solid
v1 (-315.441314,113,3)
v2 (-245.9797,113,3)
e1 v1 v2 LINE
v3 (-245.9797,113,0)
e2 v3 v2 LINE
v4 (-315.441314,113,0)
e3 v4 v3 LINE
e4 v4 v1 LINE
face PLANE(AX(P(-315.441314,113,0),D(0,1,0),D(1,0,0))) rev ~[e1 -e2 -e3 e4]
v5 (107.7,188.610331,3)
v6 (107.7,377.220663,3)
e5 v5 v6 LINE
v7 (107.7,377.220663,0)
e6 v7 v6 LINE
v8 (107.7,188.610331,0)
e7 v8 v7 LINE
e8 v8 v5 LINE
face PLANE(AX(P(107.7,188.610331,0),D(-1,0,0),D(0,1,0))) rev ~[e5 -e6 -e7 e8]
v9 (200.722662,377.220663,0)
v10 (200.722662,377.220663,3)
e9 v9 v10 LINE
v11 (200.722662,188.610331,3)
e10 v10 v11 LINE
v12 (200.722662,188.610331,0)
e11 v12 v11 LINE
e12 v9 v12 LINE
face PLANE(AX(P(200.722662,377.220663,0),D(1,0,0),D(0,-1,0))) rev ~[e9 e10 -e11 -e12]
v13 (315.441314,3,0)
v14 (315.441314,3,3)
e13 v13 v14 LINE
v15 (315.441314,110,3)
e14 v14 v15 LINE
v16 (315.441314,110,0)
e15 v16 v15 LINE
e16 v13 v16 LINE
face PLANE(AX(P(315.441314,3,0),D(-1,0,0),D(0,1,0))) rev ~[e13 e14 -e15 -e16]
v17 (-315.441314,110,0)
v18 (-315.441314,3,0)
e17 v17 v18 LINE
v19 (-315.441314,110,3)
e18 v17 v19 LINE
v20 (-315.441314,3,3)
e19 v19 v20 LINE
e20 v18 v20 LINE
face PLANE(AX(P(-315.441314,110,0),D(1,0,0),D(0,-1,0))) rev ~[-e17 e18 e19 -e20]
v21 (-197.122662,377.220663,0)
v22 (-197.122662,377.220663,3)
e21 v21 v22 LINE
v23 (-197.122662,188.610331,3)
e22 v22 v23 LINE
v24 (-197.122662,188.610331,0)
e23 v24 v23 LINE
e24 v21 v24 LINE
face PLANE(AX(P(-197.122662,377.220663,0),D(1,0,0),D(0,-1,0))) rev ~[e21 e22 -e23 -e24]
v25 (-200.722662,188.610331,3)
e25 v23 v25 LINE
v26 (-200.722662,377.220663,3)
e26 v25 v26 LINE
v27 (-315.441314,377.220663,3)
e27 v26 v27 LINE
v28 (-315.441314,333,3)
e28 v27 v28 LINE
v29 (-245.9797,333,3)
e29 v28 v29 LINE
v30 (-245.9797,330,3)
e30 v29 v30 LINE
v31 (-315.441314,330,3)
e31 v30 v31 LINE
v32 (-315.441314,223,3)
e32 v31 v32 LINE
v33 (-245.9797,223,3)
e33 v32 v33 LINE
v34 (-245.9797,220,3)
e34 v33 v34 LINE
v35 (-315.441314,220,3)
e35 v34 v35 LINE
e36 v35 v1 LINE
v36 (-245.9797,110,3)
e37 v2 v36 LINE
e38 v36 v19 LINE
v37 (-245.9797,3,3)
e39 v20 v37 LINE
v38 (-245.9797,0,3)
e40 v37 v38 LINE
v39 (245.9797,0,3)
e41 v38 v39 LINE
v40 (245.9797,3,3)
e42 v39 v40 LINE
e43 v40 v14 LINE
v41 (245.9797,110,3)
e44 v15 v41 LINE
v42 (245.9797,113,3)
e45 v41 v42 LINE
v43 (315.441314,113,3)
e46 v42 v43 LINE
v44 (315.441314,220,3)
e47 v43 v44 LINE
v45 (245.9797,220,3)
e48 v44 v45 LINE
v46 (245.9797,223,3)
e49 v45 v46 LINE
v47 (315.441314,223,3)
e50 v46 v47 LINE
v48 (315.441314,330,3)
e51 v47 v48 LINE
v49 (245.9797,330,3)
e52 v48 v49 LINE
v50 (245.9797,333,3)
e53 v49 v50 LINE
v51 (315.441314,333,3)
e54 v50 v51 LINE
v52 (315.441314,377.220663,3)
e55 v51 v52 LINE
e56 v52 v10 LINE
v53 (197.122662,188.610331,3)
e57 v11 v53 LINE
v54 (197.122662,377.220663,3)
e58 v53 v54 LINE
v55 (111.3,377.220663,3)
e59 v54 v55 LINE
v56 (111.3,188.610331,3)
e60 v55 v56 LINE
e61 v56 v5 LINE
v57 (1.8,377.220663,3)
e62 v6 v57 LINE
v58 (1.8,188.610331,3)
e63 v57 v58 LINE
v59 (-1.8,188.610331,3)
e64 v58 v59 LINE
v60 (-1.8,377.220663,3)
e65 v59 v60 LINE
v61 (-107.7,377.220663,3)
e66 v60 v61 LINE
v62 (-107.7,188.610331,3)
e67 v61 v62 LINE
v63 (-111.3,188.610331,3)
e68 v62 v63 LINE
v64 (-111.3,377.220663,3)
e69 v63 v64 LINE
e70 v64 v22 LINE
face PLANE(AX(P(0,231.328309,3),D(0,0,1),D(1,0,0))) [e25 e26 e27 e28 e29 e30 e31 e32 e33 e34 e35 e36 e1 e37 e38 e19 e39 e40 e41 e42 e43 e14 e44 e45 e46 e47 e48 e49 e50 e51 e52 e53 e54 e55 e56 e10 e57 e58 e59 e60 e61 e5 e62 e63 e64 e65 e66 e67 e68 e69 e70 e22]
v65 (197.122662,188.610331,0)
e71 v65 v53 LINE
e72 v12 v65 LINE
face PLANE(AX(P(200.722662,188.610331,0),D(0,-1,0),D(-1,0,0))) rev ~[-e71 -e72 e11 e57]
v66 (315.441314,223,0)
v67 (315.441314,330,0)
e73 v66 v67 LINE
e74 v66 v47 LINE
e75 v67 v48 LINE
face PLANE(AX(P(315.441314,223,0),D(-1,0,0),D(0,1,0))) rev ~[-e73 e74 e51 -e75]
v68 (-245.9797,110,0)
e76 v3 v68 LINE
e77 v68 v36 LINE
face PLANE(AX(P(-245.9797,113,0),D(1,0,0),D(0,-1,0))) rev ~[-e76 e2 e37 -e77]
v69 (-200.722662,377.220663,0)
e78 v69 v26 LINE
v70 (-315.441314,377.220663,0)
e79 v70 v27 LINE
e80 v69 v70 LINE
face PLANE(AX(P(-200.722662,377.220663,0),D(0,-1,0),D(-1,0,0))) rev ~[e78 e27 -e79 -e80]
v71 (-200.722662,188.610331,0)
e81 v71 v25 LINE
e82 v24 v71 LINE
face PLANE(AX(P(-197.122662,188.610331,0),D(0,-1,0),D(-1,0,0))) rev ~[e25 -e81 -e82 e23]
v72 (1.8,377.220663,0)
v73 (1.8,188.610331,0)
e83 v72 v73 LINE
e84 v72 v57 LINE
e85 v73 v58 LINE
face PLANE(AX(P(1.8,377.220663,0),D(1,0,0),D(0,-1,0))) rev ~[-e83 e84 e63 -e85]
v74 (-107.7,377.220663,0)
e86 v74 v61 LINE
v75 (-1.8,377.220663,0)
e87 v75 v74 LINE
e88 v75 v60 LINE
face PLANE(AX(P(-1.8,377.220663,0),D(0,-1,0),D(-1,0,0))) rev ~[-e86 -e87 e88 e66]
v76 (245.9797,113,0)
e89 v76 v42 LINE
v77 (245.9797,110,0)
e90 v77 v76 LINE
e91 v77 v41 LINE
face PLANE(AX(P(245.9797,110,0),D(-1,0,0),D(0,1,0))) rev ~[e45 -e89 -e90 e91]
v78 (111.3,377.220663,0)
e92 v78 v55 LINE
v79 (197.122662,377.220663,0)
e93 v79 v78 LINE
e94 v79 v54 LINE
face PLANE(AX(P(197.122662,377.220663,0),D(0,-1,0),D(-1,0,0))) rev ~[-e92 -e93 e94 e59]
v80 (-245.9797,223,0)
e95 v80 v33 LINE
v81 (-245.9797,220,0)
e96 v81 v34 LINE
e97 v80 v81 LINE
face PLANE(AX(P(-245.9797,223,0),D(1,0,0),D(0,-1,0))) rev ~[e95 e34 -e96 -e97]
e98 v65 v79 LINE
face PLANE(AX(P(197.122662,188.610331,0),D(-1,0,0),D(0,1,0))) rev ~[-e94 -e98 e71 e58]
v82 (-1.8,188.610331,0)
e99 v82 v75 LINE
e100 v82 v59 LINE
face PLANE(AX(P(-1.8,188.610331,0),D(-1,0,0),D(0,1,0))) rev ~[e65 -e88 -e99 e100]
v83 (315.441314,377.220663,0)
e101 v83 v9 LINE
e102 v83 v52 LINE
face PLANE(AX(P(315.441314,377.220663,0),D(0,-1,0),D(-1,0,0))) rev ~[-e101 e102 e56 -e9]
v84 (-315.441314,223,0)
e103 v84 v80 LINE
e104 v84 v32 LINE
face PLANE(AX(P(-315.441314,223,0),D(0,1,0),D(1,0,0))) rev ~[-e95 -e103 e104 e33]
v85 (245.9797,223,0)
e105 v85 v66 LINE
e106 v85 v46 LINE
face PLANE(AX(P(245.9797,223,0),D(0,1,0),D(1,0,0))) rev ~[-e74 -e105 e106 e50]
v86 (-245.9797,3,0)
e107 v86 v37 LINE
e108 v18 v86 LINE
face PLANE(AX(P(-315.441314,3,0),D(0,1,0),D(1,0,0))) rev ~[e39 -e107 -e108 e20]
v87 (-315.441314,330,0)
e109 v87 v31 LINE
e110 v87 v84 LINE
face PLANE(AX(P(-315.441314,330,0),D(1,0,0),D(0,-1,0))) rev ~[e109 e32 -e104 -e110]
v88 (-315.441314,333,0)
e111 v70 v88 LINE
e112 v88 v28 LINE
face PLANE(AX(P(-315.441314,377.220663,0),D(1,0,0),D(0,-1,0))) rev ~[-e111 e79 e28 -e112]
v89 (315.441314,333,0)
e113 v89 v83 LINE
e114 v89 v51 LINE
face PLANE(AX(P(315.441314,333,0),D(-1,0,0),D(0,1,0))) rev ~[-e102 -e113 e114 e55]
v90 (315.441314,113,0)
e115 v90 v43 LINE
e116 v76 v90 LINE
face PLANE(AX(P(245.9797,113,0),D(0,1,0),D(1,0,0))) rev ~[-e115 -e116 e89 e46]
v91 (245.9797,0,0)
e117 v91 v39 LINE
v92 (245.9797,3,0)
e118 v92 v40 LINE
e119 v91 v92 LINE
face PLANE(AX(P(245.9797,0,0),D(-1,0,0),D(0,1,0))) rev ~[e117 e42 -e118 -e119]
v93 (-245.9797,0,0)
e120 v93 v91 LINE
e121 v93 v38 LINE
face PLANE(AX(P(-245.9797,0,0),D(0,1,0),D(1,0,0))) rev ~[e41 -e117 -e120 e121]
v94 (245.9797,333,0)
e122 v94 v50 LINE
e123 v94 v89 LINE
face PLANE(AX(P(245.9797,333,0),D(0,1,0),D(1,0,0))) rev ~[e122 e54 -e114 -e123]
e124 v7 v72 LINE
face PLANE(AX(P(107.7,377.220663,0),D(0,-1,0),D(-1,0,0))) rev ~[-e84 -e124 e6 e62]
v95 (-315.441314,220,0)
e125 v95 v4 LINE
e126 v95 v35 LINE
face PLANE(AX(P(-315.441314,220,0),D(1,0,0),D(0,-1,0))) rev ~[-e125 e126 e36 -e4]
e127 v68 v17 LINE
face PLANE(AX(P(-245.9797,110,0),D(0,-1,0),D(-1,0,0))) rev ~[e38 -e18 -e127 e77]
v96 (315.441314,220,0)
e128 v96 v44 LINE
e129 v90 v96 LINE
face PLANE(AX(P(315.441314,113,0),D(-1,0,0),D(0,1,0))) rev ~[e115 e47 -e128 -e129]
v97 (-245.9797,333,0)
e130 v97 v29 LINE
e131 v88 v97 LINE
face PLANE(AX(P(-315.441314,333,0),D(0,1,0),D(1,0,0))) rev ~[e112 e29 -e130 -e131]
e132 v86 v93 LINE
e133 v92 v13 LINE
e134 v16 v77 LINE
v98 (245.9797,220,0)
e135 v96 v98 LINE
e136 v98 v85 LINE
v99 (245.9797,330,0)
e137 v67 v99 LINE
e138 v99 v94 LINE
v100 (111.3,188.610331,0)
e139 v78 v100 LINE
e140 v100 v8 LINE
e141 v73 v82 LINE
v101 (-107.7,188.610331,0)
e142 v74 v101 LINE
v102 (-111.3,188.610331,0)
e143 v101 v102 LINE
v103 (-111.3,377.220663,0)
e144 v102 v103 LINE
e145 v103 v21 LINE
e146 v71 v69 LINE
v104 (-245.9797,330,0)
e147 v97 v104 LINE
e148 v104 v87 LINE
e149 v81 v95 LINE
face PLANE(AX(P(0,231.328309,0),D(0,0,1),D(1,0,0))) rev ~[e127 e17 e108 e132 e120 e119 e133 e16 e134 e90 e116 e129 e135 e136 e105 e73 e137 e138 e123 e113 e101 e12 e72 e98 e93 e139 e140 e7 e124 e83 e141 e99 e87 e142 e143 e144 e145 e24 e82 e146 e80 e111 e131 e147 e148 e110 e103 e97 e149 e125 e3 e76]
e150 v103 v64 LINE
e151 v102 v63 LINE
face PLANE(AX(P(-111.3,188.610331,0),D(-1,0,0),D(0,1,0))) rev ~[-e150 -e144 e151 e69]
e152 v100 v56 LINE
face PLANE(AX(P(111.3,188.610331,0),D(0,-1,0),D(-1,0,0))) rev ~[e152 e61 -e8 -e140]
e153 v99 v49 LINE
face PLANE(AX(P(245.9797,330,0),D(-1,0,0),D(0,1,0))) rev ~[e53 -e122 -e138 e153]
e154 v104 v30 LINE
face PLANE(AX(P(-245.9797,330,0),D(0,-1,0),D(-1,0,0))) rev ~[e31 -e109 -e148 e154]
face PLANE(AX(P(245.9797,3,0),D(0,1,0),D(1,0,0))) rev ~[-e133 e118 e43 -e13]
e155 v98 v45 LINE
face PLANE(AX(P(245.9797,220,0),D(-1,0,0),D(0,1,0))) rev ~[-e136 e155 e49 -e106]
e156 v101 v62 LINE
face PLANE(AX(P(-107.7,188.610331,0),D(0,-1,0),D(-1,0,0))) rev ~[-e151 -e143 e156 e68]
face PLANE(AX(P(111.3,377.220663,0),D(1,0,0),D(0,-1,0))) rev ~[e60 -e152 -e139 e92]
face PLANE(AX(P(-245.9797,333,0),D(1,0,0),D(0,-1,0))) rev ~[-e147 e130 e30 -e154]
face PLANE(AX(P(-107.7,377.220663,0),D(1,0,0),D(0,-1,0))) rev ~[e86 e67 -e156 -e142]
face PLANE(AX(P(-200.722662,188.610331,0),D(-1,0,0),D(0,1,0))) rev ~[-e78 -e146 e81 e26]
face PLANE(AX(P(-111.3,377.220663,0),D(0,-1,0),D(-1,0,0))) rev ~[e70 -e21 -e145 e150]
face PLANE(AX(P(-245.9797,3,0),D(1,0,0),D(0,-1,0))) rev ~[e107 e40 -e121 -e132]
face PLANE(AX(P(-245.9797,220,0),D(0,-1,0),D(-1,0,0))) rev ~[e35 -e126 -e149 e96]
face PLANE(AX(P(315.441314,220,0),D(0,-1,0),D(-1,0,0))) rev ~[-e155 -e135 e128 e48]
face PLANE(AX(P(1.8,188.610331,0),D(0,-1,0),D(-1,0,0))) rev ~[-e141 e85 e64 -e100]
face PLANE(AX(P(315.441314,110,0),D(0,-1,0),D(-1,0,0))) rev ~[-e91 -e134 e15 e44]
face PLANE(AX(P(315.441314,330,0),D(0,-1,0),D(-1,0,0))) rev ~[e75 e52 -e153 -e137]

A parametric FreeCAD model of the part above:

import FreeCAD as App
import Part
import Sketcher
Q = App.Units.Quantity


def add_polygon(sketch, points):
    """Adds a closed chain of lines whose ends are joined by coincident constraints."""
    first, n = sketch.GeometryCount, len(points)
    for a, b in zip(points, points[1:] + points[:1]):
        sketch.addGeometry(Part.LineSegment(App.Vector(*a, 0), App.Vector(*b, 0)), False)
    for i in range(n):
        sketch.addConstraint(Sketcher.Constraint("Coincident", first + i, 2, first + (i + 1) % n, 1))

doc = App.newDocument("Part")
body = doc.addObject("PartDesign::Body", "Body")

sketch1 = body.newObject("Sketcher::SketchObject", "Sketch")
sketch1.AttachmentSupport = (doc.getObject("XY_Plane"), [""])
sketch1.MapMode = "FlatFace"
add_polygon(sketch1, [(-315.4, 3), (-246, 3), (-246, 0), (246, 0), (246, 3), (315.4, 3), (315.4, 110), (246, 110), (246, 113), (315.4, 113), (315.4, 220), (246, 220), (246, 223), (315.4, 223), (315.4, 330), (246, 330), (246, 333), (315.4, 333), (315.4, 377.2), (200.7, 377.2), (200.7, 188.6), (197.1, 188.6), (197.1, 377.2), (111.3, 377.2), (111.3, 188.6), (107.7, 188.6), (107.7, 377.2), (1.8, 377.2), (1.8, 188.6), (-1.8, 188.6), (-1.8, 377.2), (-107.7, 377.2), (-107.7, 188.6), (-111.3, 188.6), (-111.3, 377.2), (-197.1, 377.2), (-197.1, 188.6), (-200.7, 188.6), (-200.7, 377.2), (-315.4, 377.2), (-315.4, 333), (-246, 333), (-246, 330), (-315.4, 330), (-315.4, 223), (-246, 223), (-246, 220), (-315.4, 220), (-315.4, 113), (-246, 113), (-246, 110), (-315.4, 110)])
sketch1.addConstraint(Sketcher.Constraint("Horizontal", 0))
sketch1.addConstraint(Sketcher.Constraint("Vertical", 1))
sketch1.addConstraint(Sketcher.Constraint("Horizontal", 2))
sketch1.addConstraint(Sketcher.Constraint("Vertical", 3))
sketch1.addConstraint(Sketcher.Constraint("Horizontal", 4))
sketch1.addConstraint(Sketcher.Constraint("Vertical", 5))
sketch1.addConstraint(Sketcher.Constraint("Horizontal", 6))
sketch1.addConstraint(Sketcher.Constraint("Vertical", 7))
sketch1.addConstraint(Sketcher.Constraint("Horizontal", 8))
sketch1.addConstraint(Sketcher.Constraint("Vertical", 9))
sketch1.addConstraint(Sketcher.Constraint("Horizontal", 10))
sketch1.addConstraint(Sketcher.Constraint("Vertical", 11))
sketch1.addConstraint(Sketcher.Constraint("Horizontal", 12))
sketch1.addConstraint(Sketcher.Constraint("Vertical", 13))
sketch1.addConstraint(Sketcher.Constraint("Horizontal", 14))
sketch1.addConstraint(Sketcher.Constraint("Vertical", 15))
sketch1.addConstraint(Sketcher.Constraint("Horizontal", 16))
sketch1.addConstraint(Sketcher.Constraint("Vertical", 17))
sketch1.addConstraint(Sketcher.Constraint("Horizontal", 18))
sketch1.addConstraint(Sketcher.Constraint("Vertical", 19))
sketch1.addConstraint(Sketcher.Constraint("Horizontal", 20))
sketch1.addConstraint(Sketcher.Constraint("Vertical", 21))
sketch1.addConstraint(Sketcher.Constraint("Horizontal", 22))
sketch1.addConstraint(Sketcher.Constraint("Vertical", 23))
sketch1.addConstraint(Sketcher.Constraint("Horizontal", 24))
sketch1.addConstraint(Sketcher.Constraint("Vertical", 25))
sketch1.addConstraint(Sketcher.Constraint("Horizontal", 26))
sketch1.addConstraint(Sketcher.Constraint("Vertical", 27))
sketch1.addConstraint(Sketcher.Constraint("Horizontal", 28))
sketch1.addConstraint(Sketcher.Constraint("Vertical", 29))
sketch1.addConstraint(Sketcher.Constraint("Horizontal", 30))
sketch1.addConstraint(Sketcher.Constraint("Vertical", 31))
sketch1.addConstraint(Sketcher.Constraint("Horizontal", 32))
sketch1.addConstraint(Sketcher.Constraint("Vertical", 33))
sketch1.addConstraint(Sketcher.Constraint("Horizontal", 34))
sketch1.addConstraint(Sketcher.Constraint("Vertical", 35))
sketch1.addConstraint(Sketcher.Constraint("Horizontal", 36))
sketch1.addConstraint(Sketcher.Constraint("Vertical", 37))
sketch1.addConstraint(Sketcher.Constraint("Horizontal", 38))
sketch1.addConstraint(Sketcher.Constraint("Vertical", 39))
sketch1.addConstraint(Sketcher.Constraint("Horizontal", 40))
sketch1.addConstraint(Sketcher.Constraint("Vertical", 41))
sketch1.addConstraint(Sketcher.Constraint("Horizontal", 42))
sketch1.addConstraint(Sketcher.Constraint("Vertical", 43))
sketch1.addConstraint(Sketcher.Constraint("Horizontal", 44))
sketch1.addConstraint(Sketcher.Constraint("Vertical", 45))
sketch1.addConstraint(Sketcher.Constraint("Horizontal", 46))
sketch1.addConstraint(Sketcher.Constraint("Vertical", 47))
sketch1.addConstraint(Sketcher.Constraint("Horizontal", 48))
sketch1.addConstraint(Sketcher.Constraint("Vertical", 49))
sketch1.addConstraint(Sketcher.Constraint("Horizontal", 50))
sketch1.addConstraint(Sketcher.Constraint("Vertical", 51))
sketch1.addConstraint(Sketcher.Constraint("Symmetric", 1, 2, 2, 2, -1, 1))
sketch1.addConstraint(Sketcher.Constraint("Symmetric", 26, 2, 29, 2, -2))
sketch1.addConstraint(Sketcher.Constraint("Symmetric", 24, 2, 31, 2, -2))
sketch1.addConstraint(Sketcher.Constraint("Symmetric", 22, 2, 33, 2, -2))
sketch1.addConstraint(Sketcher.Constraint("Symmetric", 20, 2, 35, 2, -2))
sketch1.addConstraint(Sketcher.Constraint("Symmetric", 18, 2, 37, 2, -2))
sketch1.addConstraint(Sketcher.Constraint("Symmetric", 16, 2, 39, 2, -2))
sketch1.addConstraint(Sketcher.Constraint("Symmetric", 14, 2, 41, 2, -2))
sketch1.addConstraint(Sketcher.Constraint("Symmetric", 12, 2, 43, 2, -2))
sketch1.addConstraint(Sketcher.Constraint("Symmetric", 10, 2, 45, 2, -2))
sketch1.addConstraint(Sketcher.Constraint("Symmetric", 8, 2, 47, 2, -2))
sketch1.addConstraint(Sketcher.Constraint("Symmetric", 6, 2, 49, 2, -2))
sketch1.addConstraint(Sketcher.Constraint("Symmetric", 4, 2, 51, 2, -2))
sketch1.addConstraint(Sketcher.Constraint("Horizontal", 18, 2, 21, 2))
sketch1.addConstraint(Sketcher.Constraint("Horizontal", 20, 2, 23, 2))
sketch1.addConstraint(Sketcher.Constraint("Horizontal", 22, 2, 25, 2))
sketch1.addConstraint(Sketcher.Constraint("Horizontal", 24, 2, 27, 2))
sketch1.addConstraint(Sketcher.Constraint("Vertical", 3, 2, 6, 2))
sketch1.addConstraint(Sketcher.Constraint("Vertical", 5, 2, 8, 2))
sketch1.addConstraint(Sketcher.Constraint("Vertical", 7, 2, 10, 2))
sketch1.addConstraint(Sketcher.Constraint("Vertical", 9, 2, 12, 2))
sketch1.addConstraint(Sketcher.Constraint("Vertical", 11, 2, 14, 2))
sketch1.addConstraint(Sketcher.Constraint("Vertical", 13, 2, 16, 2))
sketch1.addConstraint(Sketcher.Constraint("Equal", 20, 24))
sketch1.addConstraint(Sketcher.Constraint("Equal", 24, 28))
sketch1.addConstraint(Sketcher.Constraint("Equal", 3, 7))
sketch1.addConstraint(Sketcher.Constraint("Equal", 5, 9))
sketch1.addConstraint(Sketcher.Constraint("Equal", 7, 11))
sketch1.addConstraint(Sketcher.Constraint("Equal", 9, 13))
sketch1.addConstraint(Sketcher.Constraint("Equal", 11, 15))
sketch1.addConstraint(Sketcher.Constraint("DistanceY", 1, 2, 1, 1, Q("3 mm")))
sketch1.addConstraint(Sketcher.Constraint("DistanceY", 5, 1, 5, 2, Q("107 mm")))
sketch1.addConstraint(Sketcher.Constraint("DistanceX", 20, 2, 20, 1, Q("3.6 mm")))
sketch1.addConstraint(Sketcher.Constraint("DistanceX", 26, 2, 26, 1, Q("105.9 mm")))
sketch1.addConstraint(Sketcher.Constraint("DistanceX", 2, 1, 2, 2, Q("491.9594 mm")))
sketch1.addConstraint(Sketcher.Constraint("DistanceX", 22, 2, 22, 1, Q("85.822662 mm")))
sketch1.addConstraint(Sketcher.Constraint("DistanceY", 19, 2, 19, 1, Q("188.610331 mm")))
sketch1.addConstraint(Sketcher.Constraint("DistanceX", 0, 1, 0, 2, Q("69.461614 mm")))
sketch1.addConstraint(Sketcher.Constraint("DistanceY", 17, 1, 17, 2, Q("44.220663 mm")))
pad1 = body.newObject("PartDesign::Pad", "Pad")
pad1.Profile = sketch1
pad1.Length = 3

doc.recompute()
